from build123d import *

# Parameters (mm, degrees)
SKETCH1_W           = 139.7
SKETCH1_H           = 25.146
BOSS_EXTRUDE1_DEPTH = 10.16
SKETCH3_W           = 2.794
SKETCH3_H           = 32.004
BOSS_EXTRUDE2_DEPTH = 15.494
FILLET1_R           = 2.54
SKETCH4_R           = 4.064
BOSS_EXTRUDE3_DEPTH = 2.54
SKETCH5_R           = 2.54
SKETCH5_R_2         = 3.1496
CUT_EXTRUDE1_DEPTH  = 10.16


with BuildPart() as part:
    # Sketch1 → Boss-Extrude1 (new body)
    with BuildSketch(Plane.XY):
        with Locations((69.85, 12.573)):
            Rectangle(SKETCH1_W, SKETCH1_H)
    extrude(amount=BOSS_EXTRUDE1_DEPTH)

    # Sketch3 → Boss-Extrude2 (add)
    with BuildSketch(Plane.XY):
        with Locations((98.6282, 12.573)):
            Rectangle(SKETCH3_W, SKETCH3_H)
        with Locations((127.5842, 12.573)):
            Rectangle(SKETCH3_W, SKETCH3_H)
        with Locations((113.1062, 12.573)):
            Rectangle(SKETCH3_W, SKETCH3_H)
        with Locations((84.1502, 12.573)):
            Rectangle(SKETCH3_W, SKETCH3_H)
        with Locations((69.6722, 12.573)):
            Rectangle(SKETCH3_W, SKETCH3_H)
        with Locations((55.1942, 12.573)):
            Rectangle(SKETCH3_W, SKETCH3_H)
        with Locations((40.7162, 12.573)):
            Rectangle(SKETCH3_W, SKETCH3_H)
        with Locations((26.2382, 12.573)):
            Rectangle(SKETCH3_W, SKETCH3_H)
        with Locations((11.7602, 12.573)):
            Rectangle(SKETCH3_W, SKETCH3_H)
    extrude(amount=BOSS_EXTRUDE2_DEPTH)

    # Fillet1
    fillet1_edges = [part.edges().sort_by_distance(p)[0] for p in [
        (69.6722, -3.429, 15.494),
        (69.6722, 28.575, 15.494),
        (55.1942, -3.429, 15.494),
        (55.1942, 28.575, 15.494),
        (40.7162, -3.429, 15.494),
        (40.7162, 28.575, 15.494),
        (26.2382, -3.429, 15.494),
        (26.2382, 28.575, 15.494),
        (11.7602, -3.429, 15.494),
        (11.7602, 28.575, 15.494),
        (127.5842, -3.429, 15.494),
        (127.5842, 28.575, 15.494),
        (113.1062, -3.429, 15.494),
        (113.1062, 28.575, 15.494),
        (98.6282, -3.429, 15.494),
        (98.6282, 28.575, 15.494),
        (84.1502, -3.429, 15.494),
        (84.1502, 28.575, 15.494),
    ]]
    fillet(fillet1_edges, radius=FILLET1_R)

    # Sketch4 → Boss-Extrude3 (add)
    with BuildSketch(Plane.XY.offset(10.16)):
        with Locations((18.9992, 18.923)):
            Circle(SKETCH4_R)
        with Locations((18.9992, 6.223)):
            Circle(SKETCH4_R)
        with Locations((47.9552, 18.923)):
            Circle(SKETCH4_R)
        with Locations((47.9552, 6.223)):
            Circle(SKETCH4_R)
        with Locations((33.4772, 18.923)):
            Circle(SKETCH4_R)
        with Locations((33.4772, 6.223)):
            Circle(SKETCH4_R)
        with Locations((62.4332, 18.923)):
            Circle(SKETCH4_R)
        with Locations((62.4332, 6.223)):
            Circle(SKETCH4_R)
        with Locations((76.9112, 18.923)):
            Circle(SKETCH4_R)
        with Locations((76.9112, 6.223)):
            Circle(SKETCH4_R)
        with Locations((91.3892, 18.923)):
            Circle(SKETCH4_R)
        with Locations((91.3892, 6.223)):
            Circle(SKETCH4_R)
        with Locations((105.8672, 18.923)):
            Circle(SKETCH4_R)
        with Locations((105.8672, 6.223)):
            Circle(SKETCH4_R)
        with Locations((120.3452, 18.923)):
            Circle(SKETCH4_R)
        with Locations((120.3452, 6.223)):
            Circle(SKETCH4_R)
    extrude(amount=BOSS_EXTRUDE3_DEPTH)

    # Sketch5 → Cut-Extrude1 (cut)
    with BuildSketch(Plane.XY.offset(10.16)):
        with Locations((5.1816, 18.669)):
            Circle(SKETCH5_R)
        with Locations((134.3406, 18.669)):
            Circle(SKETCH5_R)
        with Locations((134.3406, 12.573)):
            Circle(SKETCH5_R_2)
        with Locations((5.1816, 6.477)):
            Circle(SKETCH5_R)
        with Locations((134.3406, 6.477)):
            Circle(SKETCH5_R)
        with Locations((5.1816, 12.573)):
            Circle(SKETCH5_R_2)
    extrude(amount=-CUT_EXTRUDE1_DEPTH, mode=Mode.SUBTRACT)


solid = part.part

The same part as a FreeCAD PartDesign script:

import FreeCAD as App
import Part
import Sketcher
from FreeCAD import Vector
Q = App.Units.Quantity


def edges_at(feature, points):
    """Names of the edges that pass closest to the given points."""
    edges = feature.Shape.Edges
    near = lambda p: min(range(len(edges)), key=lambda i: edges[i].distToShape(Part.Vertex(*p))[0])
    return sorted({f"Edge{near(p) + 1}" for p in points})

doc = App.newDocument("Part")
body = doc.addObject("PartDesign::Body", "Body")

sketch1 = body.newObject("Sketcher::SketchObject", "Sketch")
sketch1.AttachmentSupport = (doc.getObject("XY_Plane"), [""])
sketch1.MapMode = "FlatFace"
sketch1.addGeometry([
    Part.LineSegment(Vector(0, 25.146, 0), Vector(0, 0, 0)),
    Part.LineSegment(Vector(0, 0, 0), Vector(139.7, 0, 0)),
    Part.LineSegment(Vector(139.7, 0, 0), Vector(139.7, 25.146, 0)),
    Part.LineSegment(Vector(139.7, 25.146, 0), Vector(0, 25.146, 0)),
], False)
sketch1.addConstraint([
    Sketcher.Constraint("Coincident", 0, 2, 1, 1),
    Sketcher.Constraint("Coincident", 1, 2, 2, 1),
    Sketcher.Constraint("Coincident", 2, 2, 3, 1),
    Sketcher.Constraint("Coincident", 3, 2, 0, 1),
    Sketcher.Constraint("Vertical", 0),
    Sketcher.Constraint("Horizontal", 1),
    Sketcher.Constraint("Vertical", 2),
    Sketcher.Constraint("Horizontal", 3),
    Sketcher.Constraint("Coincident", 0, 2, -1, 1),
    Sketcher.Constraint("DistanceX", 1, 1, 1, 2, Q("5.5 in")),
    Sketcher.Constraint("DistanceY", 0, 2, 0, 1, Q("0.99 in")),
])
pad1 = body.newObject("PartDesign::Pad", "Pad")
pad1.Profile = sketch1
pad1.Length = Q("0.4 in")

sketch2 = body.newObject("Sketcher::SketchObject", "Sketch001")
sketch2.AttachmentSupport = (doc.getObject("XY_Plane"), [""])
sketch2.MapMode = "FlatFace"
sketch2.addGeometry([
    Part.LineSegment(Vector(97.2312, 28.575, 0), Vector(97.2312, -3.429, 0)),
    Part.LineSegment(Vector(97.2312, -3.429, 0), Vector(100.0252, -3.429, 0)),
    Part.LineSegment(Vector(100.0252, -3.429, 0), Vector(100.0252, 28.575, 0)),
    Part.LineSegment(Vector(100.0252, 28.575, 0), Vector(97.2312, 28.575, 0)),
    Part.LineSegment(Vector(126.1872, 28.575, 0), Vector(126.1872, -3.429, 0)),
    Part.LineSegment(Vector(126.1872, -3.429, 0), Vector(128.9812, -3.429, 0)),
    Part.LineSegment(Vector(128.9812, -3.429, 0), Vector(128.9812, 28.575, 0)),
    Part.LineSegment(Vector(128.9812, 28.575, 0), Vector(126.1872, 28.575, 0)),
    Part.LineSegment(Vector(111.7092, 28.575, 0), Vector(111.7092, -3.429, 0)),
    Part.LineSegment(Vector(111.7092, -3.429, 0), Vector(114.5032, -3.429, 0)),
    Part.LineSegment(Vector(114.5032, -3.429, 0), Vector(114.5032, 28.575, 0)),
    Part.LineSegment(Vector(114.5032, 28.575, 0), Vector(111.7092, 28.575, 0)),
    Part.LineSegment(Vector(82.7532, 28.575, 0), Vector(82.7532, -3.429, 0)),
    Part.LineSegment(Vector(82.7532, -3.429, 0), Vector(85.5472, -3.429, 0)),
    Part.LineSegment(Vector(85.5472, -3.429, 0), Vector(85.5472, 28.575, 0)),
    Part.LineSegment(Vector(85.5472, 28.575, 0), Vector(82.7532, 28.575, 0)),
    Part.LineSegment(Vector(68.2752, 28.575, 0), Vector(68.2752, -3.429, 0)),
    Part.LineSegment(Vector(68.2752, -3.429, 0), Vector(71.0692, -3.429, 0)),
    Part.LineSegment(Vector(71.0692, -3.429, 0), Vector(71.0692, 28.575, 0)),
    Part.LineSegment(Vector(71.0692, 28.575, 0), Vector(68.2752, 28.575, 0)),
    Part.LineSegment(Vector(53.7972, 28.575, 0), Vector(53.7972, -3.429, 0)),
    Part.LineSegment(Vector(53.7972, -3.429, 0), Vector(56.5912, -3.429, 0)),
    Part.LineSegment(Vector(56.5912, -3.429, 0), Vector(56.5912, 28.575, 0)),
    Part.LineSegment(Vector(56.5912, 28.575, 0), Vector(53.7972, 28.575, 0)),
    Part.LineSegment(Vector(39.3192, 28.575, 0), Vector(39.3192, -3.429, 0)),
    Part.LineSegment(Vector(39.3192, -3.429, 0), Vector(42.1132, -3.429, 0)),
    Part.LineSegment(Vector(42.1132, -3.429, 0), Vector(42.1132, 28.575, 0)),
    Part.LineSegment(Vector(42.1132, 28.575, 0), Vector(39.3192, 28.575, 0)),
    Part.LineSegment(Vector(24.8412, 28.575, 0), Vector(24.8412, -3.429, 0)),
    Part.LineSegment(Vector(24.8412, -3.429, 0), Vector(27.6352, -3.429, 0)),
    Part.LineSegment(Vector(27.6352, -3.429, 0), Vector(27.6352, 28.575, 0)),
    Part.LineSegment(Vector(27.6352, 28.575, 0), Vector(24.8412, 28.575, 0)),
    Part.LineSegment(Vector(10.3632, 28.575, 0), Vector(10.3632, -3.429, 0)),
    Part.LineSegment(Vector(10.3632, -3.429, 0), Vector(13.1572, -3.429, 0)),
    Part.LineSegment(Vector(13.1572, -3.429, 0), Vector(13.1572, 28.575, 0)),
    Part.LineSegment(Vector(13.1572, 28.575, 0), Vector(10.3632, 28.575, 0)),
], False)
sketch2.addConstraint([
    Sketcher.Constraint("Coincident", 0, 2, 1, 1),
    Sketcher.Constraint("Coincident", 1, 2, 2, 1),
    Sketcher.Constraint("Coincident", 2, 2, 3, 1),
    Sketcher.Constraint("Coincident", 3, 2, 0, 1),
    Sketcher.Constraint("Coincident", 4, 2, 5, 1),
    Sketcher.Constraint("Coincident", 5, 2, 6, 1),
    Sketcher.Constraint("Coincident", 6, 2, 7, 1),
    Sketcher.Constraint("Coincident", 7, 2, 4, 1),
    Sketcher.Constraint("Coincident", 8, 2, 9, 1),
    Sketcher.Constraint("Coincident", 9, 2, 10, 1),
    Sketcher.Constraint("Coincident", 10, 2, 11, 1),
    Sketcher.Constraint("Coincident", 11, 2, 8, 1),
    Sketcher.Constraint("Coincident", 12, 2, 13, 1),
    Sketcher.Constraint("Coincident", 13, 2, 14, 1),
    Sketcher.Constraint("Coincident", 14, 2, 15, 1),
    Sketcher.Constraint("Coincident", 15, 2, 12, 1),
    Sketcher.Constraint("Coincident", 16, 2, 17, 1),
    Sketcher.Constraint("Coincident", 17, 2, 18, 1),
    Sketcher.Constraint("Coincident", 18, 2, 19, 1),
    Sketcher.Constraint("Coincident", 19, 2, 16, 1),
    Sketcher.Constraint("Coincident", 20, 2, 21, 1),
    Sketcher.Constraint("Coincident", 21, 2, 22, 1),
    Sketcher.Constraint("Coincident", 22, 2, 23, 1),
    Sketcher.Constraint("Coincident", 23, 2, 20, 1),
    Sketcher.Constraint("Coincident", 24, 2, 25, 1),
    Sketcher.Constraint("Coincident", 25, 2, 26, 1),
    Sketcher.Constraint("Coincident", 26, 2, 27, 1),
    Sketcher.Constraint("Coincident", 27, 2, 24, 1),
    Sketcher.Constraint("Coincident", 28, 2, 29, 1),
    Sketcher.Constraint("Coincident", 29, 2, 30, 1),
    Sketcher.Constraint("Coincident", 30, 2, 31, 1),
    Sketcher.Constraint("Coincident", 31, 2, 28, 1),
    Sketcher.Constraint("Coincident", 32, 2, 33, 1),
    Sketcher.Constraint("Coincident", 33, 2, 34, 1),
    Sketcher.Constraint("Coincident", 34, 2, 35, 1),
    Sketcher.Constraint("Coincident", 35, 2, 32, 1),
    Sketcher.Constraint("Vertical", 0),
    Sketcher.Constraint("Horizontal", 1),
    Sketcher.Constraint("Vertical", 2),
    Sketcher.Constraint("Horizontal", 3),
    Sketcher.Constraint("Vertical", 4),
    Sketcher.Constraint("Horizontal", 5),
    Sketcher.Constraint("Vertical", 6),
    Sketcher.Constraint("Horizontal", 7),
    Sketcher.Constraint("Vertical", 8),
    Sketcher.Constraint("Horizontal", 9),
    Sketcher.Constraint("Vertical", 10),
    Sketcher.Constraint("Horizontal", 11),
    Sketcher.Constraint("Vertical", 12),
    Sketcher.Constraint("Horizontal", 13),
    Sketcher.Constraint("Vertical", 14),
    Sketcher.Constraint("Horizontal", 15),
    Sketcher.Constraint("Vertical", 16),
    Sketcher.Constraint("Horizontal", 17),
    Sketcher.Constraint("Vertical", 18),
    Sketcher.Constraint("Horizontal", 19),
    Sketcher.Constraint("Vertical", 20),
    Sketcher.Constraint("Horizontal", 21),
    Sketcher.Constraint("Vertical", 22),
    Sketcher.Constraint("Horizontal", 23),
    Sketcher.Constraint("Vertical", 24),
    Sketcher.Constraint("Horizontal", 25),
    Sketcher.Constraint("Vertical", 26),
    Sketcher.Constraint("Horizontal", 27),
    Sketcher.Constraint("Vertical", 28),
    Sketcher.Constraint("Horizontal", 29),
    Sketcher.Constraint("Vertical", 30),
    Sketcher.Constraint("Horizontal", 31),
    Sketcher.Constraint("Vertical", 32),
    Sketcher.Constraint("Horizontal", 33),
    Sketcher.Constraint("Vertical", 34),
    Sketcher.Constraint("Horizontal", 35),
    Sketcher.Constraint("Horizontal", 1, 2, 4, 2),
    Sketcher.Constraint("Horizontal", 3, 2, 6, 2),
    Sketcher.Constraint("Horizontal", 5, 2, 8, 2),
    Sketcher.Constraint("Horizontal", 7, 2, 10, 2),
    Sketcher.Constraint("Horizontal", 9, 2, 12, 2),
    Sketcher.Constraint("Horizontal", 11, 2, 14, 2),
    Sketcher.Constraint("Horizontal", 13, 2, 16, 2),
    Sketcher.Constraint("Horizontal", 15, 2, 18, 2),
    Sketcher.Constraint("Horizontal", 17, 2, 20, 2),
    Sketcher.Constraint("Horizontal", 19, 2, 22, 2),
    Sketcher.Constraint("Horizontal", 21, 2, 24, 2),
    Sketcher.Constraint("Horizontal", 23, 2, 26, 2),
    Sketcher.Constraint("Horizontal", 25, 2, 28, 2),
    Sketcher.Constraint("Horizontal", 27, 2, 30, 2),
    Sketcher.Constraint("Horizontal", 29, 2, 32, 2),
    Sketcher.Constraint("Horizontal", 31, 2, 34, 2),
    Sketcher.Constraint("Equal", 3, 5),
    Sketcher.Constraint("Equal", 7, 9),
    Sketcher.Constraint("Equal", 11, 13),
    Sketcher.Constraint("Equal", 15, 17),
    Sketcher.Constraint("Equal", 19, 21),
    Sketcher.Constraint("Equal", 23, 25),
    Sketcher.Constraint("Equal", 27, 29),
    Sketcher.Constraint("Equal", 31, 33),
    Sketcher.Constraint("DistanceX", 1, 1, 1, 2, Q("0.11 in")),
    Sketcher.Constraint("DistanceY", 0, 2, 0, 1, Q("1.26 in")),
    Sketcher.Constraint("DistanceX", 1, 2, 4, 2, Q("1.03 in")),
    Sketcher.Constraint("DistanceX", 1, 2, 8, 2, Q("0.46 in")),
    Sketcher.Constraint("DistanceX", 12, 2, 0, 2, Q("0.57 in")),
    Sketcher.Constraint("DistanceX", 16, 2, 12, 2, Q("0.57 in")),
    Sketcher.Constraint("DistanceX", 20, 2, 16, 2, Q("0.57 in")),
    Sketcher.Constraint("DistanceX", 24, 2, 20, 2, Q("0.57 in")),
    Sketcher.Constraint("DistanceX", 28, 2, 24, 2, Q("0.57 in")),
    Sketcher.Constraint("DistanceX", 32, 2, 28, 2, Q("0.57 in")),
    Sketcher.Constraint("DistanceX", -1, 1, 0, 2, Q("3.828 in")),
    Sketcher.Constraint("DistanceY", 0, 2, -1, 1, Q("0.135 in")),
])
pad2 = body.newObject("PartDesign::Pad", "Pad001")
pad2.Profile = sketch2
pad2.Length = Q("0.61 in")
doc.recompute()

fillet = body.newObject("PartDesign::Fillet", "Fillet")
fillet.Base = (pad2, edges_at(pad2, [
    (69.672, -3.429, 15.494),
    (69.672, 28.575, 15.494),
    (55.194, -3.429, 15.494),
    (55.194, 28.575, 15.494),
    (40.716, -3.429, 15.494),
    (40.716, 28.575, 15.494),
    (26.238, -3.429, 15.494),
    (26.238, 28.575, 15.494),
    (11.76, -3.429, 15.494),
    (11.76, 28.575, 15.494),
    (127.584, -3.429, 15.494),
    (127.584, 28.575, 15.494),
    (113.106, -3.429, 15.494),
    (113.106, 28.575, 15.494),
    (98.628, -3.429, 15.494),
    (98.628, 28.575, 15.494),
    (84.15, -3.429, 15.494),
    (84.15, 28.575, 15.494),
]))
fillet.Radius = Q("0.1 in")

sketch3 = body.newObject("Sketcher::SketchObject", "Sketch002")
sketch3.AttachmentSupport = (doc.getObject("XY_Plane"), [""])
sketch3.MapMode = "FlatFace"
sketch3.AttachmentOffset = App.Placement(Vector(0, 0, 0.4 * 25.4), App.Rotation())
sketch3.addGeometry([
    Part.Circle(Vector(18.9992, 18.923, 0), Vector(0, 0, 1), 4.064),
    Part.Circle(Vector(18.9992, 6.223, 0), Vector(0, 0, 1), 4.064),
    Part.Circle(Vector(47.9552, 18.923, 0), Vector(0, 0, 1), 4.064),
    Part.Circle(Vector(47.9552, 6.223, 0), Vector(0, 0, 1), 4.064),
    Part.Circle(Vector(33.4772, 18.923, 0), Vector(0, 0, 1), 4.064),
    Part.Circle(Vector(33.4772, 6.223, 0), Vector(0, 0, 1), 4.064),
    Part.Circle(Vector(62.4332, 18.923, 0), Vector(0, 0, 1), 4.064),
    Part.Circle(Vector(62.4332, 6.223, 0), Vector(0, 0, 1), 4.064),
    Part.Circle(Vector(76.9112, 18.923, 0), Vector(0, 0, 1), 4.064),
    Part.Circle(Vector(76.9112, 6.223, 0), Vector(0, 0, 1), 4.064),
    Part.Circle(Vector(91.3892, 18.923, 0), Vector(0, 0, 1), 4.064),
    Part.Circle(Vector(91.3892, 6.223, 0), Vector(0, 0, 1), 4.064),
    Part.Circle(Vector(105.8672, 18.923, 0), Vector(0, 0, 1), 4.064),
    Part.Circle(Vector(105.8672, 6.223, 0), Vector(0, 0, 1), 4.064),
    Part.Circle(Vector(120.3452, 18.923, 0), Vector(0, 0, 1), 4.064),
    Part.Circle(Vector(120.3452, 6.223, 0), Vector(0, 0, 1), 4.064),
], False)
sketch3.addConstraint([
    Sketcher.Constraint("Equal", 0, 1),
    Sketcher.Constraint("Equal", 1, 2),
    Sketcher.Constraint("Equal", 2, 3),
    Sketcher.Constraint("Equal", 3, 4),
    Sketcher.Constraint("Equal", 4, 5),
    Sketcher.Constraint("Equal", 5, 6),
    Sketcher.Constraint("Equal", 6, 7),
    Sketcher.Constraint("Equal", 7, 8),
    Sketcher.Constraint("Equal", 8, 9),
    Sketcher.Constraint("Equal", 9, 10),
    Sketcher.Constraint("Equal", 10, 11),
    Sketcher.Constraint("Equal", 11, 12),
    Sketcher.Constraint("Equal", 12, 13),
    Sketcher.Constraint("Equal", 13, 14),
    Sketcher.Constraint("Equal", 14, 15),
    Sketcher.Constraint("Horizontal", 0, 3, 2, 3),
    Sketcher.Constraint("Horizontal", 1, 3, 3, 3),
    Sketcher.Constraint("Horizontal", 2, 3, 4, 3),
    Sketcher.Constraint("Horizontal", 3, 3, 5, 3),
    Sketcher.Constraint("Horizontal", 4, 3, 6, 3),
    Sketcher.Constraint("Horizontal", 5, 3, 7, 3),
    Sketcher.Constraint("Horizontal", 6, 3, 8, 3),
    Sketcher.Constraint("Horizontal", 7, 3, 9, 3),
    Sketcher.Constraint("Horizontal", 8, 3, 10, 3),
    Sketcher.Constraint("Horizontal", 9, 3, 11, 3),
    Sketcher.Constraint("Horizontal", 10, 3, 12, 3),
    Sketcher.Constraint("Horizontal", 11, 3, 13, 3),
    Sketcher.Constraint("Horizontal", 12, 3, 14, 3),
    Sketcher.Constraint("Horizontal", 13, 3, 15, 3),
    Sketcher.Constraint("Vertical", 0, 3, 1, 3),
    Sketcher.Constraint("Vertical", 2, 3, 3, 3),
    Sketcher.Constraint("Vertical", 4, 3, 5, 3),
    Sketcher.Constraint("Vertical", 6, 3, 7, 3),
    Sketcher.Constraint("Vertical", 8, 3, 9, 3),
    Sketcher.Constraint("Vertical", 10, 3, 11, 3),
    Sketcher.Constraint("Vertical", 12, 3, 13, 3),
    Sketcher.Constraint("Vertical", 14, 3, 15, 3),
    Sketcher.Constraint("Diameter", 0, Q("0.32 in")),
    Sketcher.Constraint("DistanceY", 1, 3, 0, 3, Q("0.5 in")),
    Sketcher.Constraint("DistanceX", 0, 3, 2, 3, Q("1.14 in")),
    Sketcher.Constraint("DistanceX", 4, 3, 2, 3, Q("0.57 in")),
    Sketcher.Constraint("DistanceX", 2, 3, 6, 3, Q("0.57 in")),
    Sketcher.Constraint("DistanceX", 6, 3, 8, 3, Q("0.57 in")),
    Sketcher.Constraint("DistanceX", 8, 3, 10, 3, Q("0.57 in")),
    Sketcher.Constraint("DistanceX", 10, 3, 12, 3, Q("0.57 in")),
    Sketcher.Constraint("DistanceX", 12, 3, 14, 3, Q("0.57 in")),
    Sketcher.Constraint("DistanceX", -1, 1, 0, 3, Q("0.748 in")),
    Sketcher.Constraint("DistanceY", -1, 1, 0, 3, Q("0.745 in")),
])
pad3 = body.newObject("PartDesign::Pad", "Pad002")
pad3.Profile = sketch3
pad3.Length = Q("0.1 in")

sketch4 = body.newObject("Sketcher::SketchObject", "Sketch003")
sketch4.AttachmentSupport = (doc.getObject("XY_Plane"), [""])
sketch4.MapMode = "FlatFace"
sketch4.AttachmentOffset = App.Placement(Vector(0, 0, 0.4 * 25.4), App.Rotation())
sketch4.addGeometry([
    Part.Circle(Vector(5.1816, 18.669, 0), Vector(0, 0, 1), 2.54),
    Part.Circle(Vector(134.3406, 18.669, 0), Vector(0, 0, 1), 2.54),
    Part.Circle(Vector(134.3406, 12.573, 0), Vector(0, 0, 1), 3.1496),
    Part.Circle(Vector(5.1816, 6.477, 0), Vector(0, 0, 1), 2.54),
    Part.Circle(Vector(134.3406, 6.477, 0), Vector(0, 0, 1), 2.54),
    Part.Circle(Vector(5.1816, 12.573, 0), Vector(0, 0, 1), 3.1496),
], False)
sketch4.addConstraint([
    Sketcher.Constraint("Equal", 0, 1),
    Sketcher.Constraint("Equal", 1, 3),
    Sketcher.Constraint("Equal", 3, 4),
    Sketcher.Constraint("Equal", 2, 5),
    Sketcher.Constraint("Horizontal", 0, 3, 1, 3),
    Sketcher.Constraint("Horizontal", 3, 3, 4, 3),
    Sketcher.Constraint("Horizontal", 2, 3, 5, 3),
    Sketcher.Constraint("Vertical", 1, 3, 2, 3),
    Sketcher.Constraint("Vertical", 0, 3, 3, 3),
    Sketcher.Constraint("Vertical", 2, 3, 4, 3),
    Sketcher.Constraint("Vertical", 3, 3, 5, 3),
    Sketcher.Constraint("Diameter", 0, Q("0.2 in")),
    Sketcher.Constraint("Diameter", 2, Q("0.248 in")),
    Sketcher.Constraint("DistanceY", 2, 3, 1, 3, Q("0.24 in")),
    Sketcher.Constraint("DistanceY", 3, 3, 0, 3, Q("0.48 in")),
    Sketcher.Constraint("DistanceX", -1, 1, 0, 3, Q("0.204 in")),
    Sketcher.Constraint("DistanceY", -1, 1, 0, 3, Q("0.735 in")),
    Sketcher.Constraint("DistanceX", -1, 1, 1, 3, Q("5.289 in")),
])
pocket1 = body.newObject("PartDesign::Pocket", "Pocket")
pocket1.Profile = sketch4
pocket1.Length = Q("0.4 in")

doc.recompute()
